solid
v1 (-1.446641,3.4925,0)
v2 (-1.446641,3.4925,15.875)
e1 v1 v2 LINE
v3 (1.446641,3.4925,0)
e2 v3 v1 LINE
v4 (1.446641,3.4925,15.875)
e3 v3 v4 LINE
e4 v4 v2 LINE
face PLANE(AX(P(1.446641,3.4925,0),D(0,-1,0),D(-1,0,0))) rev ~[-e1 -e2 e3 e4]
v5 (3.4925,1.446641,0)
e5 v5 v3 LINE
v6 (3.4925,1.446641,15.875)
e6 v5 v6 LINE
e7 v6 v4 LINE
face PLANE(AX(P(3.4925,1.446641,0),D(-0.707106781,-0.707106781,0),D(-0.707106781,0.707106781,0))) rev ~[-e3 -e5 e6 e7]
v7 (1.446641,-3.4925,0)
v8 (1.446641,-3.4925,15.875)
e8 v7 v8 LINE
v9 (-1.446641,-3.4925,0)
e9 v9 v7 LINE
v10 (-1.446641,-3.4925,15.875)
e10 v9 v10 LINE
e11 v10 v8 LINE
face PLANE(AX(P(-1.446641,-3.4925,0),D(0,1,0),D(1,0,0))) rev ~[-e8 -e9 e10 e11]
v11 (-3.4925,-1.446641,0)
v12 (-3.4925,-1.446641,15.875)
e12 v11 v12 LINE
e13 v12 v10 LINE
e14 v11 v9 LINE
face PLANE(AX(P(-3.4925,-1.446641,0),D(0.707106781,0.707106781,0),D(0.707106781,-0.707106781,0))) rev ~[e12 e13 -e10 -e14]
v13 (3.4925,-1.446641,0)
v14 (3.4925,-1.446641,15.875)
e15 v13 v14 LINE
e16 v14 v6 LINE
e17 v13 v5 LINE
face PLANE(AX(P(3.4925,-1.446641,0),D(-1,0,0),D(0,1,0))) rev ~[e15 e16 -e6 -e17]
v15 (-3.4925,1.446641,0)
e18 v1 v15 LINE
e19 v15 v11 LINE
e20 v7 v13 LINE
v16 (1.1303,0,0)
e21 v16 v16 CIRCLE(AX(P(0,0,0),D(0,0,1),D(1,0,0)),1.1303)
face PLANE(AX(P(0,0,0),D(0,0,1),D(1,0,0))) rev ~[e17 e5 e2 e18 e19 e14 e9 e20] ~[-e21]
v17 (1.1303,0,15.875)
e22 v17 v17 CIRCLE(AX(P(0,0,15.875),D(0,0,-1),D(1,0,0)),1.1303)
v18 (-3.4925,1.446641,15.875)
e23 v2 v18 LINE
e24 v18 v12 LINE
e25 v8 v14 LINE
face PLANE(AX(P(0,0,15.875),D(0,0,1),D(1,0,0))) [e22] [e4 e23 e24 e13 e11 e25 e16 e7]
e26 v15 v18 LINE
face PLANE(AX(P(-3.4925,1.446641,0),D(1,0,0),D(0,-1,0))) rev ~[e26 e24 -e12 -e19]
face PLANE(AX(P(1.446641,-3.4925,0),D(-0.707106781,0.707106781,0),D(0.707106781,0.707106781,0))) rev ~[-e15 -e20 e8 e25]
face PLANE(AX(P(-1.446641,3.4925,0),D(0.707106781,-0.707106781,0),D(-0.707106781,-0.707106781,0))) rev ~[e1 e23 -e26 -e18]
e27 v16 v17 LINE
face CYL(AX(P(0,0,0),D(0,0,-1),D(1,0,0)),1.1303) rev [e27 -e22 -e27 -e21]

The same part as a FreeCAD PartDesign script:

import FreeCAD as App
import Part
import Sketcher

V = App.Vector
Q = App.Units.Quantity

doc = App.newDocument("Part")
body = doc.addObject("PartDesign::Body", "Body")

# Sketch on XY plane
sketch1 = doc.addObject("Sketcher::SketchObject", "Sketch")
body.addObject(sketch1)
sketch1.AttachmentSupport = (doc.XY_Plane, [""])
sketch1.MapMode = "FlatFace"
sketch1.addGeometry([
    Part.LineSegment(V(3.4925, 1.446641, 0), V(1.446641, 3.4925, 0)),  # 0
    Part.LineSegment(V(1.446641, 3.4925, 0), V(-1.446641, 3.4925, 0)),  # 1
    Part.LineSegment(V(-1.446641, 3.4925, 0), V(-3.4925, 1.446641, 0)),  # 2
    Part.LineSegment(V(-3.4925, 1.446641, 0), V(-3.4925, -1.446641, 0)),  # 3
    Part.LineSegment(V(-3.4925, -1.446641, 0), V(-1.446641, -3.4925, 0)),  # 4
    Part.LineSegment(V(-1.446641, -3.4925, 0), V(1.446641, -3.4925, 0)),  # 5
    Part.LineSegment(V(1.446641, -3.4925, 0), V(3.4925, -1.446641, 0)),  # 6
    Part.LineSegment(V(3.4925, -1.446641, 0), V(3.4925, 1.446641, 0)),  # 7
], False)
sketch1.addConstraint([
    Sketcher.Constraint("Coincident", 0, 2, 1, 1),
    Sketcher.Constraint("Coincident", 1, 2, 2, 1),
    Sketcher.Constraint("Coincident", 2, 2, 3, 1),
    Sketcher.Constraint("Coincident", 3, 2, 4, 1),
    Sketcher.Constraint("Coincident", 4, 2, 5, 1),
    Sketcher.Constraint("Coincident", 5, 2, 6, 1),
    Sketcher.Constraint("Coincident", 6, 2, 7, 1),
    Sketcher.Constraint("Coincident", 7, 2, 0, 1),
    Sketcher.Constraint("Horizontal", 1),
    Sketcher.Constraint("Vertical", 3),
    Sketcher.Constraint("Horizontal", 5),
    Sketcher.Constraint("Vertical", 7),
    Sketcher.Constraint("Symmetric", 0, 2, 4, 2, -1, 1),
    Sketcher.Constraint("Symmetric", 2, 2, 6, 2, -1, 1),
    Sketcher.Constraint("Perpendicular", 0, 2),
    Sketcher.Constraint("Perpendicular", 2, 4),
    Sketcher.Constraint("Perpendicular", 4, 6),
    Sketcher.Constraint("Horizontal", 3, 2, 6, 2),
    Sketcher.Constraint("Vertical", 1, 2, 4, 2),
    Sketcher.Constraint("Equal", 5, 3),
    Sketcher.Constraint("DistanceY", 4, 2, 1, 2, Q("0.275 in")),
    Sketcher.Constraint("Distance", 0, 2.893282),
])
pad1 = doc.addObject("PartDesign::Pad", "Pad")
body.addObject(pad1)
pad1.Profile = sketch1
pad1.Length = Q("0.625 in")

# Sketch on XY plane
sketch2 = doc.addObject("Sketcher::SketchObject", "Sketch001")
body.addObject(sketch2)
sketch2.AttachmentSupport = (doc.XY_Plane, [""])
sketch2.MapMode = "FlatFace"
sketch2.addGeometry(Part.Circle(V(0, 0, 0), V(0, 0, 1), 1.1303), False)
sketch2.addConstraint([
    Sketcher.Constraint("Coincident", 0, 3, -1, 1),
    Sketcher.Constraint("Diameter", 0, Q("0.089 in")),
])
pocket1 = doc.addObject("PartDesign::Pocket", "Pocket")
body.addObject(pocket1)
pocket1.Profile = sketch2
pocket1.Type = "ThroughAll"
pocket1.Reversed = True

doc.recompute()
